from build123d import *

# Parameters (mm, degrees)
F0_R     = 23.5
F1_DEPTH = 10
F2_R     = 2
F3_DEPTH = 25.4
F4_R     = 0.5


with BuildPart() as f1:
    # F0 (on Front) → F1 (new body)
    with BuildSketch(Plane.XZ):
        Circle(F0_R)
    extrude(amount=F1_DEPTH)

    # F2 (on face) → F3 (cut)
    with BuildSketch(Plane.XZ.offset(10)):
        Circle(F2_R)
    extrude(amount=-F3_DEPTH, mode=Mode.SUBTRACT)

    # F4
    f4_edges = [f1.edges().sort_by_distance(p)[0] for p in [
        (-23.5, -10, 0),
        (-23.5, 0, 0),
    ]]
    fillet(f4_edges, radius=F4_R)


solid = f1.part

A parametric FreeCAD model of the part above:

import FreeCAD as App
import Part
import Sketcher
Q = App.Units.Quantity


def edges_at(feature, points):
    """Names of the edges that pass closest to the given points."""
    edges = feature.Shape.Edges
    near = lambda p: min(range(len(edges)), key=lambda i: edges[i].distToShape(Part.Vertex(*p))[0])
    return sorted({f"Edge{near(p) + 1}" for p in points})

doc = App.newDocument("Part")
body = doc.addObject("PartDesign::Body", "Body")

# Sketch on XZ plane
sketch1 = body.newObject("Sketcher::SketchObject", "Sketch")
sketch1.AttachmentSupport = (doc.getObject("XZ_Plane"), [""])
sketch1.MapMode = "FlatFace"
sketch1.addGeometry(Part.Circle(App.Vector(0, 0, 0), App.Vector(0, 0, 1), 24), False)
sketch1.addConstraint(Sketcher.Constraint("Coincident", 0, 3, -1, 1))
sketch1.addConstraint(Sketcher.Constraint("Diameter", 0, Q("47 mm")))
pad1 = body.newObject("PartDesign::Pad", "Pad")
pad1.Profile = sketch1
pad1.Length = 10

# Sketch on XZ plane
sketch2 = body.newObject("Sketcher::SketchObject", "Sketch001")
sketch2.AttachmentSupport = (doc.getObject("XZ_Plane"), [""])
sketch2.MapMode = "FlatFace"
sketch2.AttachmentOffset = App.Placement(App.Vector(0, 0, 10), App.Rotation())
sketch2.addGeometry(Part.Circle(App.Vector(0, 0, 0), App.Vector(0, 0, 1), 2), False)
sketch2.addConstraint(Sketcher.Constraint("Coincident", 0, 3, -1, 1))
sketch2.addConstraint(Sketcher.Constraint("Diameter", 0, Q("4 mm")))
pocket1 = body.newObject("PartDesign::Pocket", "Pocket")
pocket1.Profile = sketch2
pocket1.Length = 25.4
doc.recompute()

fillet = body.newObject("PartDesign::Fillet", "Fillet")
fillet.Base = (pocket1, edges_at(pocket1, [(-23.5, -10, 0), (-23.5, 0, 0)]))
fillet.Radius = 0.5

doc.recompute()
